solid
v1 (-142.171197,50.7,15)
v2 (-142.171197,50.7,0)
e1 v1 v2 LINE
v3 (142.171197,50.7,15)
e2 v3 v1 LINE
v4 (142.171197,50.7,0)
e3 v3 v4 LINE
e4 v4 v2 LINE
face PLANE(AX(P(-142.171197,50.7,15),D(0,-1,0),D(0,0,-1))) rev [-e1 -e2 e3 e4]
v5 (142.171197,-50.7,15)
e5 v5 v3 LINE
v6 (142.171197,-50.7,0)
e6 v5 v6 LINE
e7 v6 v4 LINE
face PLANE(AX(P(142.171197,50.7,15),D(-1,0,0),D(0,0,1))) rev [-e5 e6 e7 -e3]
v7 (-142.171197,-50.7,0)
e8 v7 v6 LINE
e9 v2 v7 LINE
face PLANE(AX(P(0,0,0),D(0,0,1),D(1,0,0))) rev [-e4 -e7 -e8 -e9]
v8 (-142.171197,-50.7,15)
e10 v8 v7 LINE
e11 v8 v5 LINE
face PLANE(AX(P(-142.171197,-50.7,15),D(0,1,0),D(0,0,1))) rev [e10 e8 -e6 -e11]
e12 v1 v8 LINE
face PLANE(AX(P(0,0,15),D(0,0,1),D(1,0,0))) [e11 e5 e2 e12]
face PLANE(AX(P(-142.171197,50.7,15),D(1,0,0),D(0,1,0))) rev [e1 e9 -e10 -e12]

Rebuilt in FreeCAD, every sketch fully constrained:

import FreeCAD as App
import Part
import Sketcher
from FreeCAD import Vector

doc = App.newDocument("Part")
params = doc.addObject("Spreadsheet::Sheet", "Params")
for row, (alias, value) in enumerate([
    ("sketch1_height", "101.399999 mm"),
    ("pad1_length", "15 mm"),
], start=1):
    params.set(f"A{row}", alias)
    params.set(f"B{row}", "=" + value)
    params.setAlias(f"B{row}", alias)

body = doc.addObject("PartDesign::Body", "Body")

sketch1 = body.newObject("Sketcher::SketchObject", "Sketch")
sketch1.AttachmentSupport = (doc.getObject("XY_Plane"), [""])
sketch1.MapMode = "FlatFace"
sketch1.addGeometry(Part.LineSegment(Vector(-142.171197, 50.7, 0), Vector(-142.171197, -50.7, 0)), False)
sketch1.addGeometry(Part.LineSegment(Vector(-142.171197, -50.7, 0), Vector(142.171197, -50.7, 0)), False)
sketch1.addGeometry(Part.LineSegment(Vector(142.171197, -50.7, 0), Vector(142.171197, 50.7, 0)), False)
sketch1.addGeometry(Part.LineSegment(Vector(142.171197, 50.7, 0), Vector(-142.171197, 50.7, 0)), False)
sketch1.addConstraint(Sketcher.Constraint("Coincident", 0, 2, 1, 1))
sketch1.addConstraint(Sketcher.Constraint("Coincident", 1, 2, 2, 1))
sketch1.addConstraint(Sketcher.Constraint("Coincident", 2, 2, 3, 1))
sketch1.addConstraint(Sketcher.Constraint("Coincident", 3, 2, 0, 1))
sketch1.addConstraint(Sketcher.Constraint("Vertical", 0))
sketch1.addConstraint(Sketcher.Constraint("Horizontal", 1))
sketch1.addConstraint(Sketcher.Constraint("Vertical", 2))
sketch1.addConstraint(Sketcher.Constraint("Horizontal", 3))
sketch1.addConstraint(Sketcher.Constraint("Symmetric", 0, 2, 2, 2, -1, 1))
sketch1.addConstraint(Sketcher.Constraint("DistanceY", 0, 2, 0, 1, 101.399999))
sketch1.addConstraint(Sketcher.Constraint("DistanceX", 1, 1, 1, 2, 284.342395))
sketch1.setExpression("Constraints[9]", "Params.sketch1_height")
pad1 = body.newObject("PartDesign::Pad", "Pad")
pad1.Profile = sketch1
pad1.setExpression("Length", "Params.pad1_length")

doc.recompute()
